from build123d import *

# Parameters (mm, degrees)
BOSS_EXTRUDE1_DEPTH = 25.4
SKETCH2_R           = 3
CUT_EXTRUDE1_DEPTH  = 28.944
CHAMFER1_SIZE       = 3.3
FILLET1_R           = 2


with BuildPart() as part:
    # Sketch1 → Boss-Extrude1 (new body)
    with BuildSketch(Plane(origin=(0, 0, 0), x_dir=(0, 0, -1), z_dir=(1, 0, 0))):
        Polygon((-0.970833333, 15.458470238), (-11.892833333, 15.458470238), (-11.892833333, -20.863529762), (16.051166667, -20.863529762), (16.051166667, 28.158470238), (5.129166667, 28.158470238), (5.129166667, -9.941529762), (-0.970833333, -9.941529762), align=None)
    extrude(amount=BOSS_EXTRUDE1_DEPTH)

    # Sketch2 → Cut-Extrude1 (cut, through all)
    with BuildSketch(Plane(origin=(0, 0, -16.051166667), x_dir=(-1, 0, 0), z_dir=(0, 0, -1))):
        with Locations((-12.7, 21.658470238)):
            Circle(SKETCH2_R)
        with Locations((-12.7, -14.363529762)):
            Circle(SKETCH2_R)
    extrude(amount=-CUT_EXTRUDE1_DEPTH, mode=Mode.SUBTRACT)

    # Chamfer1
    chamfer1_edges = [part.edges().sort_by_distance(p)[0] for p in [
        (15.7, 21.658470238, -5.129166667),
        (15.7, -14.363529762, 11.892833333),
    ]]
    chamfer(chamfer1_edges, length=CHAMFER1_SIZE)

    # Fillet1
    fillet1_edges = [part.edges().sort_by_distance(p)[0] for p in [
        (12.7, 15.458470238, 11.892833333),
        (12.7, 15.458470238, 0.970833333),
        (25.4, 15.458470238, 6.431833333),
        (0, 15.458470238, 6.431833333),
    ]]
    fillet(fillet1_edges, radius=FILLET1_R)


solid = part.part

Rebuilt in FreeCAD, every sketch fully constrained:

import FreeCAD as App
import Part
import Sketcher
Q = App.Units.Quantity


def edges_at(feature, points):
    """Names of the edges that pass closest to the given points."""
    edges = feature.Shape.Edges
    near = lambda p: min(range(len(edges)), key=lambda i: edges[i].distToShape(Part.Vertex(*p))[0])
    return sorted({f"Edge{near(p) + 1}" for p in points})

doc = App.newDocument("Part")
params = doc.addObject("Spreadsheet::Sheet", "Params")
for row, (alias, value) in enumerate([
    ("sketch1_width", "1 in"),
    ("sketch1_width2", "1.5 in"),
    ("sketch1_width3", "1.43 in"),
    ("sketch1_height", "0.43 in"),
    ("pad1_length", "1 in"),
    ("chamfer_size", "3.3 mm"),
    ("fillet_radius", "2 mm"),
], start=1):
    params.set(f"A{row}", alias)
    params.set(f"B{row}", "=" + value)
    params.setAlias(f"B{row}", alias)

body = doc.addObject("PartDesign::Body", "Body")

sketch1 = body.newObject("Sketcher::SketchObject", "Sketch")
sketch1.AttachmentSupport = (doc.getObject("YZ_Plane"), [""])
sketch1.MapMode = "FlatFace"
sketch1.addGeometry([
    Part.LineSegment(App.Vector(15.45847, 0.970833, 0), App.Vector(15.45847, 11.892833, 0)),
    Part.LineSegment(App.Vector(15.45847, 11.892833, 0), App.Vector(-20.86353, 11.892833, 0)),
    Part.LineSegment(App.Vector(-20.86353, 11.892833, 0), App.Vector(-20.86353, -16.051167, 0)),
    Part.LineSegment(App.Vector(-20.86353, -16.051167, 0), App.Vector(28.15847, -16.051167, 0)),
    Part.LineSegment(App.Vector(28.15847, -16.051167, 0), App.Vector(28.15847, -5.129167, 0)),
    Part.LineSegment(App.Vector(28.15847, -5.129167, 0), App.Vector(-9.94153, -5.129167, 0)),
    Part.LineSegment(App.Vector(-9.94153, -5.129167, 0), App.Vector(-9.94153, 0.970833, 0)),
    Part.LineSegment(App.Vector(-9.94153, 0.970833, 0), App.Vector(15.45847, 0.970833, 0)),
], False)
sketch1.addConstraint([
    Sketcher.Constraint("Coincident", 0, 2, 1, 1),
    Sketcher.Constraint("Coincident", 1, 2, 2, 1),
    Sketcher.Constraint("Coincident", 2, 2, 3, 1),
    Sketcher.Constraint("Coincident", 3, 2, 4, 1),
    Sketcher.Constraint("Coincident", 4, 2, 5, 1),
    Sketcher.Constraint("Coincident", 5, 2, 6, 1),
    Sketcher.Constraint("Coincident", 6, 2, 7, 1),
    Sketcher.Constraint("Coincident", 7, 2, 0, 1),
    Sketcher.Constraint("Vertical", 0),
    Sketcher.Constraint("Horizontal", 1),
    Sketcher.Constraint("Vertical", 2),
    Sketcher.Constraint("Horizontal", 3),
    Sketcher.Constraint("Vertical", 4),
    Sketcher.Constraint("Horizontal", 5),
    Sketcher.Constraint("Vertical", 6),
    Sketcher.Constraint("Horizontal", 7),
    Sketcher.Constraint("Equal", 0, 4),
    Sketcher.Constraint("DistanceX", 7, 1, 7, 2, Q("1 in")),
    Sketcher.Constraint("DistanceX", 5, 2, 5, 1, Q("1.5 in")),
    Sketcher.Constraint("DistanceX", 1, 2, 1, 1, Q("1.43 in")),
    Sketcher.Constraint("DistanceY", 0, 1, 0, 2, Q("0.43 in")),
    Sketcher.Constraint("DistanceY", 2, 2, 2, 1, Q("27.944 mm")),
    Sketcher.Constraint("DistanceX", -1, 1, 0, 2, Q("15.45847 mm")),
    Sketcher.Constraint("DistanceY", -1, 1, 0, 2, Q("11.892833 mm")),
])
sketch1.setExpression("Constraints[17]", "Params.sketch1_width")
sketch1.setExpression("Constraints[18]", "Params.sketch1_width2")
sketch1.setExpression("Constraints[19]", "Params.sketch1_width3")
sketch1.setExpression("Constraints[20]", "Params.sketch1_height")
pad1 = body.newObject("PartDesign::Pad", "Pad")
pad1.Profile = sketch1
pad1.setExpression("Length", "Params.pad1_length")

sketch2 = body.newObject("Sketcher::SketchObject", "Sketch001")
sketch2.AttachmentSupport = (doc.getObject("XY_Plane"), [""])
sketch2.MapMode = "FlatFace"
sketch2.AttachmentOffset = App.Placement(App.Vector(0, 0, -16.051167), App.Rotation())
sketch2.addGeometry([
    Part.Circle(App.Vector(12.7, 21.65847, 0), App.Vector(0, 0, 1), 3),
    Part.Circle(App.Vector(12.7, -14.36353, 0), App.Vector(0, 0, 1), 3),
], False)
sketch2.addConstraint([
    Sketcher.Constraint("Equal", 0, 1),
    Sketcher.Constraint("Vertical", 0, 3, 1, 3),
    Sketcher.Constraint("DistanceX", -1, 1, 0, 3, Q("0.5 in")),
    Sketcher.Constraint("Diameter", 0, Q("6 mm")),
    Sketcher.Constraint("DistanceY", 1, 3, 0, 3, Q("36.022 mm")),
    Sketcher.Constraint("DistanceY", -1, 1, 0, 3, Q("21.65847 mm")),
])
pocket1 = body.newObject("PartDesign::Pocket", "Pocket")
pocket1.Profile = sketch2
pocket1.Type = "ThroughAll"
pocket1.Reversed = True
doc.recompute()

chamfer = body.newObject("PartDesign::Chamfer", "Chamfer")
chamfer.Base = (pocket1, edges_at(pocket1, [(15.7, 21.658, -5.129), (15.7, -14.364, 11.893)]))
chamfer.setExpression("Size", "Params.chamfer_size")
doc.recompute()

fillet = body.newObject("PartDesign::Fillet", "Fillet")
fillet.Base = (chamfer, edges_at(chamfer, [
    (12.7, 15.458, 11.893),
    (12.7, 15.458, 0.971),
    (25.4, 15.458, 6.432),
    (0, 15.458, 6.432),
]))
fillet.setExpression("Radius", "Params.fillet_radius")

doc.recompute()
